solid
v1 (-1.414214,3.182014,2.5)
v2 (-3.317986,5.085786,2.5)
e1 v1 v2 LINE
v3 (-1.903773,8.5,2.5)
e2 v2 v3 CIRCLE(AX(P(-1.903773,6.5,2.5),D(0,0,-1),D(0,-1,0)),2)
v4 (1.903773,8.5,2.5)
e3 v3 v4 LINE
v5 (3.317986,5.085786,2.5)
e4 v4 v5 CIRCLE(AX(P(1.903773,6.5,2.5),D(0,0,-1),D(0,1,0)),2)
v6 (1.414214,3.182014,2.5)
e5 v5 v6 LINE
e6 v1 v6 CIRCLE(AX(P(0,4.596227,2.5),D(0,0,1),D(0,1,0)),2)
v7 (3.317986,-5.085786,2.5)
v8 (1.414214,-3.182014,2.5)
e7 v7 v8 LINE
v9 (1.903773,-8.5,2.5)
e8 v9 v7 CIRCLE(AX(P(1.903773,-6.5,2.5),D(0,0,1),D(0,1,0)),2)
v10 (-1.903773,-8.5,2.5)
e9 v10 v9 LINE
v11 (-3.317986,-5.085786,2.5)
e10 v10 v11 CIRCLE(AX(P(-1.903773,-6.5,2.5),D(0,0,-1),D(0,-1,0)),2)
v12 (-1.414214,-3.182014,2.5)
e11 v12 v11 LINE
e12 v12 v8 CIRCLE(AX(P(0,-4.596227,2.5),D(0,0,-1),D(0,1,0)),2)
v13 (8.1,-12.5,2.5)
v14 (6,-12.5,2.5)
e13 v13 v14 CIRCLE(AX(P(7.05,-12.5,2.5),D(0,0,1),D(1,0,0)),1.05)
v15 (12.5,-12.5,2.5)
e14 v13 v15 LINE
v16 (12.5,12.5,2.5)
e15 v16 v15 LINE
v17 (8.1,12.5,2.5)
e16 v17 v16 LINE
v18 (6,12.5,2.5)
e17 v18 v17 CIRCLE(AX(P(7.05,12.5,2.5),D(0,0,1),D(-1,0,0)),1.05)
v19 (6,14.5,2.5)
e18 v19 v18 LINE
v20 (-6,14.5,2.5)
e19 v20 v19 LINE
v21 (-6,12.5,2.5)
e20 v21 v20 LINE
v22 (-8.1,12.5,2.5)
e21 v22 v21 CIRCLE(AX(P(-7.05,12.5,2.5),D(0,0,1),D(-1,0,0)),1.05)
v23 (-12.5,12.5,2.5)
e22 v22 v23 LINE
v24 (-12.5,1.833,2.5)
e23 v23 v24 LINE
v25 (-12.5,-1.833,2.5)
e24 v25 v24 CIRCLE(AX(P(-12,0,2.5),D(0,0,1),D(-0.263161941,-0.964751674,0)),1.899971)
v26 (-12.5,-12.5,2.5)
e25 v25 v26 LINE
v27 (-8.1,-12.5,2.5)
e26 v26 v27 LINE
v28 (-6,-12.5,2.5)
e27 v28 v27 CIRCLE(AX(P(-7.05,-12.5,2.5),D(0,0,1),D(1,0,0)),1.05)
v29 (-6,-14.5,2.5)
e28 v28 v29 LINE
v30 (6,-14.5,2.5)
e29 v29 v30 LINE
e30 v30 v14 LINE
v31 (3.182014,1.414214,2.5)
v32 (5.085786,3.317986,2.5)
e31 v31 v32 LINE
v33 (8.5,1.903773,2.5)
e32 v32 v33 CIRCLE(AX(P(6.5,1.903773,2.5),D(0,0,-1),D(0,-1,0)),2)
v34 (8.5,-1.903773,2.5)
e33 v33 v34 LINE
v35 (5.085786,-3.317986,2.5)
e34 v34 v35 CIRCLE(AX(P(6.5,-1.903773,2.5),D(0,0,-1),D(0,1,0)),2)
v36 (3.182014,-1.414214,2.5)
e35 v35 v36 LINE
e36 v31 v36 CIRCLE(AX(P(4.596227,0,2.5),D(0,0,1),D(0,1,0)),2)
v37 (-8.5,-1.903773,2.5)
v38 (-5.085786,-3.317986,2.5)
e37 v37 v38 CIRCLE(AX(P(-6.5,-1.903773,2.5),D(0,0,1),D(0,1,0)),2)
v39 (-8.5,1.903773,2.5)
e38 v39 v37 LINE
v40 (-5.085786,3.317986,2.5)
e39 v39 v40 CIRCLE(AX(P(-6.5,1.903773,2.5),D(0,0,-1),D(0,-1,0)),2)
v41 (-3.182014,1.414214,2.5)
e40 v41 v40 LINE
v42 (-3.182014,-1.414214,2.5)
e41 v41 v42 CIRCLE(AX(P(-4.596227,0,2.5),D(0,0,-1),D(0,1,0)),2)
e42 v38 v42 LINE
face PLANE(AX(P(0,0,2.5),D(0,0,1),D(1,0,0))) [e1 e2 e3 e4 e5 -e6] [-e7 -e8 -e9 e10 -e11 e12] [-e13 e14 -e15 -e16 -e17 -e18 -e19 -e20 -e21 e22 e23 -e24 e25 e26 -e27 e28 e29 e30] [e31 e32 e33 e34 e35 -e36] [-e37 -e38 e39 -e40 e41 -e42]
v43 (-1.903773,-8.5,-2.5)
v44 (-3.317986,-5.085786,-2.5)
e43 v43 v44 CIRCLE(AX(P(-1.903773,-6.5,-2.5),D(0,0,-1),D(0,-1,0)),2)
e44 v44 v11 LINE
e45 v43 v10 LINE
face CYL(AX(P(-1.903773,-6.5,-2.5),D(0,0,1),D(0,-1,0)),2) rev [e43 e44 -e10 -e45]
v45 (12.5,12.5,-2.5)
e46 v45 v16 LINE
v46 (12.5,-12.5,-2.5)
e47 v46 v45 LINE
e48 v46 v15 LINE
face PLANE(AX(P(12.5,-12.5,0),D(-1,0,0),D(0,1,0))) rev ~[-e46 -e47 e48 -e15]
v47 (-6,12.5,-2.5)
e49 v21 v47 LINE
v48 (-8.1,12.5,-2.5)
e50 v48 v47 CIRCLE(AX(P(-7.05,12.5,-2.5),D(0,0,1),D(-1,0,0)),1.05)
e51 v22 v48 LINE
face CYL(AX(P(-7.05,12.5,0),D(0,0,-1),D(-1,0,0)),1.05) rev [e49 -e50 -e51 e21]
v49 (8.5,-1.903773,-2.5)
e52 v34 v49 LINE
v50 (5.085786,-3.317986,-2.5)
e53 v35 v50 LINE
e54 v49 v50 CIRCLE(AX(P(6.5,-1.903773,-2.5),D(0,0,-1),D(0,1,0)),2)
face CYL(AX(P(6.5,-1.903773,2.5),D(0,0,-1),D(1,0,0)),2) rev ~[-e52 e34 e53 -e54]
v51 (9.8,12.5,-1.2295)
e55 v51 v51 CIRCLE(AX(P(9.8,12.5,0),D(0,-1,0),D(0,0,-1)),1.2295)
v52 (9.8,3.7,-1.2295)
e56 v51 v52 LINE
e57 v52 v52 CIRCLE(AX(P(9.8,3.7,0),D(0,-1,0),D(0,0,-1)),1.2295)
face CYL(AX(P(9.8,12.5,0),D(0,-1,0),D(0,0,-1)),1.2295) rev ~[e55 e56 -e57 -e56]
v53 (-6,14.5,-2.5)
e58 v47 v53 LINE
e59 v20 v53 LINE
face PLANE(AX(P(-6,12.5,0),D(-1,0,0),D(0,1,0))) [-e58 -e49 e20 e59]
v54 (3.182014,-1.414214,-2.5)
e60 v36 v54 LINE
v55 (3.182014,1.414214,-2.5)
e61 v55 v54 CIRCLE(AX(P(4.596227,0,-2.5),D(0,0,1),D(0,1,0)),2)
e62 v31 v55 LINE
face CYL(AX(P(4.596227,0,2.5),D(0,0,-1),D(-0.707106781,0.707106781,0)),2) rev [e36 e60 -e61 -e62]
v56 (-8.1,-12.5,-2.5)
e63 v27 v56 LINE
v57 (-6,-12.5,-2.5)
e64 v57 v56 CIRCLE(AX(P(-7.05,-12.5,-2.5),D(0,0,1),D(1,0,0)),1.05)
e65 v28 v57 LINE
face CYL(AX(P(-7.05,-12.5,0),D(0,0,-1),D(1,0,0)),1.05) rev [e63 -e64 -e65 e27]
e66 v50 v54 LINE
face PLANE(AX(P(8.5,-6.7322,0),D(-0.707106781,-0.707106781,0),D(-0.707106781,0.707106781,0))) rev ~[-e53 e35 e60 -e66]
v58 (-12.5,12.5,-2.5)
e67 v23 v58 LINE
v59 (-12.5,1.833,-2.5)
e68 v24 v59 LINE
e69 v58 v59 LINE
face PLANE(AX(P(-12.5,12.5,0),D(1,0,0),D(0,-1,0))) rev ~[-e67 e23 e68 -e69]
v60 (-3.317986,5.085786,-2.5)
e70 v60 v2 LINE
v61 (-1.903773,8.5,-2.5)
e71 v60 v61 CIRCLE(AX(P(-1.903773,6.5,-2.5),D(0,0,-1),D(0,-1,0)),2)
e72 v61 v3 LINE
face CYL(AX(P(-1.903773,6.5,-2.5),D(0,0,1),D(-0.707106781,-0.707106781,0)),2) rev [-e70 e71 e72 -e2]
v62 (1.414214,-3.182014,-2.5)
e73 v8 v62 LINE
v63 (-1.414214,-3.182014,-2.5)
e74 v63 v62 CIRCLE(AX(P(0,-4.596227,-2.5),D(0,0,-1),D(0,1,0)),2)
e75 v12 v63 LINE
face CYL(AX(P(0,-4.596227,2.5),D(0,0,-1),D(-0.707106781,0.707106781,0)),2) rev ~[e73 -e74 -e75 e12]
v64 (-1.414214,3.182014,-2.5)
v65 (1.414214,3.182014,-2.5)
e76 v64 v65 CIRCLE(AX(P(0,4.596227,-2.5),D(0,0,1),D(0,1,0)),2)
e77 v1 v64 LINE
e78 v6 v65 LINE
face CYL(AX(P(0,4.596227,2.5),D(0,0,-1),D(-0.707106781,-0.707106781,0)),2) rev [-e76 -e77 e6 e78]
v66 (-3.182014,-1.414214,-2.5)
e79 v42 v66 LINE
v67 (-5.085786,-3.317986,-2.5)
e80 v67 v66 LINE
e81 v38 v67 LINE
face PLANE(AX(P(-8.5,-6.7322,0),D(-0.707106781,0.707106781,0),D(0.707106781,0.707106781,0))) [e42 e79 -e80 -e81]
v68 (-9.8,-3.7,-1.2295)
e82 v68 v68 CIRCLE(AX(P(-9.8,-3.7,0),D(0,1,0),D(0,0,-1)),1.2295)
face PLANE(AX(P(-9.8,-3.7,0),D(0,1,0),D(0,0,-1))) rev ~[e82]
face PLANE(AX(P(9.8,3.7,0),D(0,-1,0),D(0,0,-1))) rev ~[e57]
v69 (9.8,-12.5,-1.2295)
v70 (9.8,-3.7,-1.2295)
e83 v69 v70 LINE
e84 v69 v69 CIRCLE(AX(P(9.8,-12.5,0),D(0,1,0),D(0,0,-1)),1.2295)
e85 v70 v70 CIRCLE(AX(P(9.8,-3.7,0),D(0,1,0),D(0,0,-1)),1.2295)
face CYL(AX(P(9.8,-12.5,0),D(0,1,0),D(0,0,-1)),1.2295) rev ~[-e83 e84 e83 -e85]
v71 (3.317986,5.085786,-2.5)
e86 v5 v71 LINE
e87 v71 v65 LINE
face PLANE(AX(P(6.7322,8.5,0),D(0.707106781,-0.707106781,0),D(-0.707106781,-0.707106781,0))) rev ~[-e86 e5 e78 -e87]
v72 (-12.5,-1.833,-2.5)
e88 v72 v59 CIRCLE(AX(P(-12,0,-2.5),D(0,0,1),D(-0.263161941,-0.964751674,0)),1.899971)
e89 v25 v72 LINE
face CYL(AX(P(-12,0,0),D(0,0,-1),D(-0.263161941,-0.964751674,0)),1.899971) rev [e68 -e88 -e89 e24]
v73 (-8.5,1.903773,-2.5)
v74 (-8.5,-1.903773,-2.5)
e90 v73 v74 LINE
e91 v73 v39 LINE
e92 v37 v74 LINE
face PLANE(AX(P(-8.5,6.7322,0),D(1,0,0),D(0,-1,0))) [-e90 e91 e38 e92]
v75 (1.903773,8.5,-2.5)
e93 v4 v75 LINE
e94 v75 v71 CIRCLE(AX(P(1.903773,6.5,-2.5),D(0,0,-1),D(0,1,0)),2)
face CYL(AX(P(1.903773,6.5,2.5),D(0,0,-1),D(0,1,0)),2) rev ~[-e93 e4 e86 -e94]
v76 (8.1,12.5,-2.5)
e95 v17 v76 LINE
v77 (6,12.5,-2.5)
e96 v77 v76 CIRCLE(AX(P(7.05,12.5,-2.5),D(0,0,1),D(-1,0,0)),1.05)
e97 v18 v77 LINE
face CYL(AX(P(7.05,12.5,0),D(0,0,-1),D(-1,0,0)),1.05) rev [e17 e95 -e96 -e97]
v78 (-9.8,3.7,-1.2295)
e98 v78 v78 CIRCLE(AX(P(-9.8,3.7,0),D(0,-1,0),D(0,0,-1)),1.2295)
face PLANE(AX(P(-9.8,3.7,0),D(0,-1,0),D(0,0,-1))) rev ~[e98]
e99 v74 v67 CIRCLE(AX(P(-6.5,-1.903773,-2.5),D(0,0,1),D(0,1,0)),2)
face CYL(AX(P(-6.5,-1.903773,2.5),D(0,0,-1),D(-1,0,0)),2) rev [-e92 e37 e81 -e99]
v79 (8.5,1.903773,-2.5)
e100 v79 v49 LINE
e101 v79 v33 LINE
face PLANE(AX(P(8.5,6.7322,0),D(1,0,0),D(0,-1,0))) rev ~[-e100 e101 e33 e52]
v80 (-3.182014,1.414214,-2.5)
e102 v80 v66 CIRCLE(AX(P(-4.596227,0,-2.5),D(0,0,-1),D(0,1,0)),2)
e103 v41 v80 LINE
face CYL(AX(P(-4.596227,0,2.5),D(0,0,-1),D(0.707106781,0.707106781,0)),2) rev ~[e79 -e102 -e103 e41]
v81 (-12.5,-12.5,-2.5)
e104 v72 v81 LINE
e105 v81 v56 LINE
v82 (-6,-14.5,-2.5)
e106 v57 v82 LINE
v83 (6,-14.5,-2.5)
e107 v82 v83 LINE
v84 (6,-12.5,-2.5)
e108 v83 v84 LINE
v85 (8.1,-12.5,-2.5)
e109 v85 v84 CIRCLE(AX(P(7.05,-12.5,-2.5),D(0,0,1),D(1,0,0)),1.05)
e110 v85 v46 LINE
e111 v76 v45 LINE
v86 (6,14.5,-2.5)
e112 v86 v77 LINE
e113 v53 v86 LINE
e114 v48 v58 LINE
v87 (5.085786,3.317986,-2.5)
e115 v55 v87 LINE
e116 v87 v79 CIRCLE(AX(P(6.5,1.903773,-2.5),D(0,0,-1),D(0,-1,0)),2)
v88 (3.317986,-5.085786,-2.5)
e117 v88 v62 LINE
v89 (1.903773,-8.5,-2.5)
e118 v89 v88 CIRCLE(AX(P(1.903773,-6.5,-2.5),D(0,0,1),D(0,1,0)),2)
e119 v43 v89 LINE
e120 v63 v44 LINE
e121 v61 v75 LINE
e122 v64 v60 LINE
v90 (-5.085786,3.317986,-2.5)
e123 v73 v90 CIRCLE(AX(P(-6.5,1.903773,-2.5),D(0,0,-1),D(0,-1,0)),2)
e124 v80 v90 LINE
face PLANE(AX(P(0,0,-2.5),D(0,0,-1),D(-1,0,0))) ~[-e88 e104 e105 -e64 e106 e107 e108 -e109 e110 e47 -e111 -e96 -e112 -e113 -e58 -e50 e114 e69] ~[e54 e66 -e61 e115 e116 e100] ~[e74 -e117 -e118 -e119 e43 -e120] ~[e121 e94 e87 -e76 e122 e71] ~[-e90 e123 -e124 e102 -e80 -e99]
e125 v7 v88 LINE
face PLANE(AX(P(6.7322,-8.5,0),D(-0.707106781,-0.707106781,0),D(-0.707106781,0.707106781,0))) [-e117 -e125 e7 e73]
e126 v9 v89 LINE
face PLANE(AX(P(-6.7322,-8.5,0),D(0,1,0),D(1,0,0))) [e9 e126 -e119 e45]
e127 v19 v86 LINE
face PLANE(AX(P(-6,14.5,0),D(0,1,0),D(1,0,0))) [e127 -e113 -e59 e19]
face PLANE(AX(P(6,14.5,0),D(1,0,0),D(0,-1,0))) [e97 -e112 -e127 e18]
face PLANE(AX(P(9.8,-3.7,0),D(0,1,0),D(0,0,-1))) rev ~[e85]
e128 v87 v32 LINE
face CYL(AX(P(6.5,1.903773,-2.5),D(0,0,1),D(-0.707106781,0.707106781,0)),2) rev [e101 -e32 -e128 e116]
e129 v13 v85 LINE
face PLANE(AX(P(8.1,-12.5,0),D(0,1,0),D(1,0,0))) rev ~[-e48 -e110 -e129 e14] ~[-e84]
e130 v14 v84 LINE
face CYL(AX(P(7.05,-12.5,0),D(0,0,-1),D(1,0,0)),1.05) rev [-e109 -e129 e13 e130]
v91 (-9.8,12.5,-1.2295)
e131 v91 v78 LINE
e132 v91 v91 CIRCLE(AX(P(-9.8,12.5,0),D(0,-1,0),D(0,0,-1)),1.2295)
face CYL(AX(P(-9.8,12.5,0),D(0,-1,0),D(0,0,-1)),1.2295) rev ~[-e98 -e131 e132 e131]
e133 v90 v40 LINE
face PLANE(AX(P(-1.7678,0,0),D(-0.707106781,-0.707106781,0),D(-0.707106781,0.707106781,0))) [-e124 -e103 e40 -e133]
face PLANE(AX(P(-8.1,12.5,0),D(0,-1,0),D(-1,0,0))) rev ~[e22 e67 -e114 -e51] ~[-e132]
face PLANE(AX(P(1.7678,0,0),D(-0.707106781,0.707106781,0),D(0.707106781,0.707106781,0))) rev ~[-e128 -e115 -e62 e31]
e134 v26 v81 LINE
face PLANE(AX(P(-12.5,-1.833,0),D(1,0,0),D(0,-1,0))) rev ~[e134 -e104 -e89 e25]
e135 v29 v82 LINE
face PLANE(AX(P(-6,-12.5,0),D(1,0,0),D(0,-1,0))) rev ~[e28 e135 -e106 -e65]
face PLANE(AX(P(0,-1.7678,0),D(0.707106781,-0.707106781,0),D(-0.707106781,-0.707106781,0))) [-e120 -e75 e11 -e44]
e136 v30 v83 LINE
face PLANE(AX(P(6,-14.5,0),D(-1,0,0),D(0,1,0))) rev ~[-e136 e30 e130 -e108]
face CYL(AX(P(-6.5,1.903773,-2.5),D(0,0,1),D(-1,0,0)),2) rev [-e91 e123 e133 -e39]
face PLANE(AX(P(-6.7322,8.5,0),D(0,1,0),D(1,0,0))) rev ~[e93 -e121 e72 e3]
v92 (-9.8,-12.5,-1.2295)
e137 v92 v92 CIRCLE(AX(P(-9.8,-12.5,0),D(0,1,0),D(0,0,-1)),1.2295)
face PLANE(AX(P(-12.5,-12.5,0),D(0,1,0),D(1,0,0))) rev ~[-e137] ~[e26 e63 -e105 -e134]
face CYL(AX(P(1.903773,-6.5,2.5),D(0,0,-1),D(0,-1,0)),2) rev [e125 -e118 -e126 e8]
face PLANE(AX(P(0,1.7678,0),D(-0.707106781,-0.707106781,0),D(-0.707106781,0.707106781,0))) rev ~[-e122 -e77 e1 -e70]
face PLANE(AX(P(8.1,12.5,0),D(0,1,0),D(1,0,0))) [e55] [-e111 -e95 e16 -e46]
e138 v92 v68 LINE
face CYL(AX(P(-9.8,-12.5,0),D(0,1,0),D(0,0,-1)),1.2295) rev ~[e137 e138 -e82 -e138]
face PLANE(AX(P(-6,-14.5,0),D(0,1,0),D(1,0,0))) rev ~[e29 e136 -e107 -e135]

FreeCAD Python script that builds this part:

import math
import FreeCAD as App
import Part
import Sketcher

V = App.Vector


def edges_at(feature, points):
    """Names of the edges that pass closest to the given points."""
    edges = feature.Shape.Edges
    near = lambda p: min(range(len(edges)), key=lambda i: edges[i].distToShape(Part.Vertex(*p))[0])
    return sorted({f"Edge{near(p) + 1}" for p in points})


def add_polygon(sketch, points):
    """Adds a closed chain of lines whose ends are joined by coincident constraints."""
    first, n = sketch.GeometryCount, len(points)
    for a, b in zip(points, points[1:] + points[:1]):
        sketch.addGeometry(Part.LineSegment(App.Vector(*a, 0), App.Vector(*b, 0)), False)
    for i in range(n):
        sketch.addConstraint(Sketcher.Constraint("Coincident", first + i, 2, first + (i + 1) % n, 1))

doc = App.newDocument("Part")
body = doc.addObject("PartDesign::Body", "Body")

# Sketch on XY plane
sketch1 = body.newObject("Sketcher::SketchObject", "Sketch")
sketch1.AttachmentSupport = (doc.getObject("XY_Plane"), [""])
sketch1.MapMode = "FlatFace"
sketch1.addGeometry(Part.LineSegment(V(8.1, -12.5, 0), V(12.5, -12.5, 0)), False)  # 0
sketch1.addGeometry(Part.LineSegment(V(12.5, -12.5, 0), V(12.5, 12.5, 0)), False)  # 1
sketch1.addGeometry(Part.LineSegment(V(12.5, 12.5, 0), V(8.1, 12.5, 0)), False)  # 2
sketch1.addGeometry(Part.ArcOfCircle(Part.Circle(V(7, 12.5, 0), V(0, 0, 1), 1), math.radians(180), math.radians(360)), False)  # 3
sketch1.addGeometry(Part.LineSegment(V(6, 12.5, 0), V(6, 14.5, 0)), False)  # 4
sketch1.addGeometry(Part.LineSegment(V(6, 14.5, 0), V(-6, 14.5, 0)), False)  # 5
sketch1.addGeometry(Part.LineSegment(V(-6, 14.5, 0), V(-6, 12.5, 0)), False)  # 6
sketch1.addGeometry(Part.ArcOfCircle(Part.Circle(V(-7, 12.5, 0), V(0, 0, 1), 1), math.radians(180), math.radians(360)), False)  # 7
sketch1.addGeometry(Part.LineSegment(V(-8.1, 12.5, 0), V(-12.5, 12.5, 0)), False)  # 8
sketch1.addGeometry(Part.LineSegment(V(-12.5, 12.5, 0), V(-12.5, 1.8, 0)), False)  # 9
sketch1.addGeometry(Part.ArcOfCircle(Part.Circle(V(-12, 0, 0), V(0, 0, 1), 1.9), math.radians(-105), math.radians(105)), False)  # 10
sketch1.addGeometry(Part.LineSegment(V(-12.5, -1.8, 0), V(-12.5, -12.5, 0)), False)  # 11
sketch1.addGeometry(Part.LineSegment(V(-12.5, -12.5, 0), V(-8.1, -12.5, 0)), False)  # 12
sketch1.addGeometry(Part.ArcOfCircle(Part.Circle(V(-7, -12.5, 0), V(0, 0, 1), 1), math.radians(0), math.radians(180)), False)  # 13
sketch1.addGeometry(Part.LineSegment(V(-6, -12.5, 0), V(-6, -14.5, 0)), False)  # 14
sketch1.addGeometry(Part.LineSegment(V(-6, -14.5, 0), V(6, -14.5, 0)), False)  # 15
sketch1.addGeometry(Part.LineSegment(V(6, -14.5, 0), V(6, -12.5, 0)), False)  # 16
sketch1.addGeometry(Part.ArcOfCircle(Part.Circle(V(7, -12.5, 0), V(0, 0, 1), 1), math.radians(0), math.radians(180)), False)  # 17
add_polygon(sketch1, [(6.7, -8.5), (-6.7, -8.5), (0, -1.8)])  # lines 18-20
add_polygon(sketch1, [(-8.5, -6.7), (-8.5, 6.7), (-1.8, 0)])  # lines 21-23
add_polygon(sketch1, [(1.8, 0), (8.5, 6.7), (8.5, -6.7)])  # lines 24-26
add_polygon(sketch1, [(0, 1.8), (-6.7, 8.5), (6.7, 8.5)])  # lines 27-29
sketch1.addConstraint([
    Sketcher.Constraint("Coincident", 0, 2, 1, 1),
    Sketcher.Constraint("Coincident", 1, 2, 2, 1),
    Sketcher.Constraint("Coincident", 2, 2, 3, 2),
    Sketcher.Constraint("Tangent", 3, 1, 4, 1),
    Sketcher.Constraint("Coincident", 4, 2, 5, 1),
    Sketcher.Constraint("Coincident", 5, 2, 6, 1),
    Sketcher.Constraint("Tangent", 6, 2, 7, 2),
    Sketcher.Constraint("Coincident", 7, 1, 8, 1),
    Sketcher.Constraint("Coincident", 8, 2, 9, 1),
    Sketcher.Constraint("Coincident", 9, 2, 10, 2),
    Sketcher.Constraint("Coincident", 10, 1, 11, 1),
    Sketcher.Constraint("Coincident", 11, 2, 12, 1),
    Sketcher.Constraint("Coincident", 12, 2, 13, 2),
    Sketcher.Constraint("Tangent", 13, 1, 14, 1),
    Sketcher.Constraint("Coincident", 14, 2, 15, 1),
    Sketcher.Constraint("Coincident", 15, 2, 16, 1),
    Sketcher.Constraint("Tangent", 16, 2, 17, 2),
    Sketcher.Constraint("Coincident", 17, 1, 0, 1),
    Sketcher.Constraint("Horizontal", 0),
    Sketcher.Constraint("Vertical", 1),
    Sketcher.Constraint("Horizontal", 2),
    Sketcher.Constraint("Vertical", 4),
    Sketcher.Constraint("Horizontal", 5),
    Sketcher.Constraint("Vertical", 6),
    Sketcher.Constraint("Horizontal", 8),
    Sketcher.Constraint("Vertical", 9),
    Sketcher.Constraint("Vertical", 11),
    Sketcher.Constraint("Horizontal", 12),
    Sketcher.Constraint("Vertical", 14),
    Sketcher.Constraint("Horizontal", 15),
    Sketcher.Constraint("Vertical", 16),
    Sketcher.Constraint("Horizontal", 18),
    Sketcher.Constraint("Vertical", 21),
    Sketcher.Constraint("Vertical", 25),
    Sketcher.Constraint("Horizontal", 28),
    Sketcher.Constraint("Equal", 3, 7),
    Sketcher.Constraint("Equal", 7, 13),
    Sketcher.Constraint("Equal", 13, 17),
    Sketcher.Constraint("Symmetric", 3, 3, 13, 3, -1, 1),
    Sketcher.Constraint("Symmetric", 7, 3, 17, 3, -1, 1),
    Sketcher.Constraint("Symmetric", 0, 2, 8, 2, -1, 1),
    Sketcher.Constraint("Symmetric", 1, 2, 11, 2, -1, 1),
    Sketcher.Constraint("Symmetric", 23, 2, 24, 2, -1, 1),
    Sketcher.Constraint("Symmetric", 22, 2, 26, 2, -1, 1),
    Sketcher.Constraint("Symmetric", 20, 2, 27, 2, -1, 1),
    Sketcher.Constraint("Symmetric", 19, 2, 29, 2, -1, 1),
    Sketcher.Constraint("Symmetric", 3, 3, 7, 3, -2),
    Sketcher.Constraint("PointOnObject", 10, 3, -1),
    Sketcher.Constraint("PointOnObject", 19, 2, -2),
    Sketcher.Constraint("PointOnObject", 22, 2, -1),
    Sketcher.Constraint("Perpendicular", 19, 20),
    Sketcher.Constraint("Parallel", 20, 22),
    Sketcher.Constraint("Perpendicular", 22, 23),
    Sketcher.Constraint("Perpendicular", 24, 26),
    Sketcher.Constraint("Perpendicular", 27, 29),
    Sketcher.Constraint("Horizontal", 17, 3, 0, 2),
    Sketcher.Constraint("Horizontal", 7, 3, 1, 2),
    Sketcher.Constraint("Horizontal", 21, 2, 24, 2),
    Sketcher.Constraint("Equal", 6, 14),
    Sketcher.Constraint("Equal", 28, 21),
    Sketcher.Constraint("Radius", 10, 1.9),
    Sketcher.Constraint("DistanceY", 1, 1, 1, 2, 25.0),
    Sketcher.Constraint("DistanceY", 4, 1, 4, 2, 2.0),
    Sketcher.Constraint("Radius", 3, 1.05),
    Sketcher.Constraint("DistanceY", 13, 3, 18, 2, 4.0),
    Sketcher.Constraint("DistanceX", 9, 2, 21, 2, 4.0),
    Sketcher.Constraint("DistanceX", 3, 1, 1, 2, 6.5),
    Sketcher.Constraint("DistanceX", 8, 2, 10, 3, 0.5),
    Sketcher.Constraint("DistanceX", 5, 2, 5, 1, 12.0),
    Sketcher.Constraint("DistanceX", 18, 2, 18, 1, 13.4644),
])
pad1 = body.newObject("PartDesign::Pad", "Pad")
pad1.Profile = sketch1
pad1.Length = 2.5
doc.recompute()

mirrored = body.newObject("PartDesign::Mirrored", "Mirrored")
mirrored.Originals = [pad1]
mirrored.MirrorPlane = (doc.getObject("XY_Plane"), [""])
body.Tip = mirrored

# Sketch on XZ plane
sketch2 = body.newObject("Sketcher::SketchObject", "Sketch001")
sketch2.AttachmentSupport = (doc.getObject("XZ_Plane"), [""])
sketch2.MapMode = "FlatFace"
sketch2.AttachmentOffset = App.Placement(V(0, 0, 12.5), App.Rotation())
sketch2.addGeometry([
    Part.Circle(V(-9.8, 0, 0), V(0, 0, 1), 1.2),
    Part.Circle(V(9.8, 0, 0), V(0, 0, 1), 1.2),
], False)
sketch2.addConstraint([
    Sketcher.Constraint("Equal", 0, 1),
    Sketcher.Constraint("Symmetric", 0, 3, 1, 3, -1, 1),
    Sketcher.Constraint("PointOnObject", 0, 3, -1),
    Sketcher.Constraint("Diameter", 0, 2.459),
    Sketcher.Constraint("DistanceX", 0, 3, -1, 1, 9.8),
])
doc.recompute()
hole = body.newObject("PartDesign::Hole", "Hole")
hole.Profile = sketch2
hole.ThreadType = "None"
hole.Diameter = 2.459
hole.DepthType = "Dimension"
hole.Depth = 8.8
hole.DrillPoint = "Flat"
doc.recompute()

polarpattern = body.newObject("PartDesign::PolarPattern", "PolarPattern")
polarpattern.Originals = [hole]
polarpattern.Axis = (doc.getObject("Z_Axis"), [""])
polarpattern.Angle = 360
polarpattern.Occurrences = 2
body.Tip = polarpattern
doc.recompute()

fillet = body.newObject("PartDesign::Fillet", "Fillet")
fillet.Base = (polarpattern, edges_at(polarpattern, [
    (8.5, 6.732, 0),
    (8.5, -6.732, 0),
    (6.732, -8.5, 0),
    (0, 1.768, 0),
    (-1.768, 0, 0),
    (-6.732, -8.5, 0),
    (-8.5, -6.732, 0),
    (6.732, 8.5, 0),
    (-8.5, 6.732, 0),
    (-6.732, 8.5, 0),
    (0, -1.768, 0),
    (1.768, 0, 0),
]))
fillet.Radius = 2

doc.recompute()
